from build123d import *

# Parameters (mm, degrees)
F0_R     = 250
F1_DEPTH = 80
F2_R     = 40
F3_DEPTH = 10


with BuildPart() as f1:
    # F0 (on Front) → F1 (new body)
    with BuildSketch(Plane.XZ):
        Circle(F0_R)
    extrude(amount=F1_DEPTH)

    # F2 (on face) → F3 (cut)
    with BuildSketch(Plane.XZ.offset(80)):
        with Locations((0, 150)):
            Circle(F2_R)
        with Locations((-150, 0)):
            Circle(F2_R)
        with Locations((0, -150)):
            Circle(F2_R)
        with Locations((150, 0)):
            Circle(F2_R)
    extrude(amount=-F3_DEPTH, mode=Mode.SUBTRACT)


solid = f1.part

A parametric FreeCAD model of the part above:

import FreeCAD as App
import Part
import Sketcher

V = App.Vector
Q = App.Units.Quantity

doc = App.newDocument("Part")
params = doc.addObject("Spreadsheet::Sheet", "Params")
for row, (alias, value) in enumerate([
    ("sketch1_diameter", "500 mm"),
    ("pad1_length", "80 mm"),
    ("sketch2_diameter", "80 mm"),
    ("pocket1_length", "10 mm"),
], start=1):
    params.set(f"A{row}", alias)
    params.set(f"B{row}", "=" + value)
    params.setAlias(f"B{row}", alias)

body = doc.addObject("PartDesign::Body", "Body")

# Sketch on XZ plane
sketch1 = body.newObject("Sketcher::SketchObject", "Sketch")
sketch1.AttachmentSupport = (doc.getObject("XZ_Plane"), [""])
sketch1.MapMode = "FlatFace"
sketch1.addGeometry(Part.Circle(V(0, 0, 0), V(0, 0, 1), 250), False)
sketch1.addConstraint(Sketcher.Constraint("Coincident", 0, 3, -1, 1))
sketch1.addConstraint(Sketcher.Constraint("Diameter", 0, Q("500 mm")))
sketch1.setExpression("Constraints[1]", "Params.sketch1_diameter")
pad1 = body.newObject("PartDesign::Pad", "Pad")
pad1.Profile = sketch1
pad1.setExpression("Length", "Params.pad1_length")

# Sketch on XZ plane
sketch2 = body.newObject("Sketcher::SketchObject", "Sketch001")
sketch2.AttachmentSupport = (doc.getObject("XZ_Plane"), [""])
sketch2.MapMode = "FlatFace"
sketch2.AttachmentOffset = App.Placement(V(0, 0, 80), App.Rotation())
sketch2.addGeometry(Part.Circle(V(0, 150, 0), V(0, 0, 1), 40), False)
sketch2.addGeometry(Part.Circle(V(-150, 0, 0), V(0, 0, 1), 40), False)
sketch2.addGeometry(Part.Circle(V(0, -150, 0), V(0, 0, 1), 40), False)
sketch2.addGeometry(Part.Circle(V(150, 0, 0), V(0, 0, 1), 40), False)
sketch2.addConstraint(Sketcher.Constraint("Equal", 0, 1))
sketch2.addConstraint(Sketcher.Constraint("Equal", 1, 2))
sketch2.addConstraint(Sketcher.Constraint("Equal", 2, 3))
sketch2.addConstraint(Sketcher.Constraint("Symmetric", 0, 3, 2, 3, -1, 1))
sketch2.addConstraint(Sketcher.Constraint("Symmetric", 1, 3, 3, 3, -1, 1))
sketch2.addConstraint(Sketcher.Constraint("PointOnObject", 0, 3, -2))
sketch2.addConstraint(Sketcher.Constraint("PointOnObject", 1, 3, -1))
sketch2.addConstraint(Sketcher.Constraint("Diameter", 0, Q("80 mm")))
sketch2.addConstraint(Sketcher.Constraint("DistanceY", -1, 1, 0, 3, Q("150 mm")))
sketch2.addConstraint(Sketcher.Constraint("DistanceX", 1, 3, -1, 1, Q("150 mm")))
sketch2.setExpression("Constraints[7]", "Params.sketch2_diameter")
pocket1 = body.newObject("PartDesign::Pocket", "Pocket")
pocket1.Profile = sketch2
pocket1.setExpression("Length", "Params.pocket1_length")

doc.recompute()
